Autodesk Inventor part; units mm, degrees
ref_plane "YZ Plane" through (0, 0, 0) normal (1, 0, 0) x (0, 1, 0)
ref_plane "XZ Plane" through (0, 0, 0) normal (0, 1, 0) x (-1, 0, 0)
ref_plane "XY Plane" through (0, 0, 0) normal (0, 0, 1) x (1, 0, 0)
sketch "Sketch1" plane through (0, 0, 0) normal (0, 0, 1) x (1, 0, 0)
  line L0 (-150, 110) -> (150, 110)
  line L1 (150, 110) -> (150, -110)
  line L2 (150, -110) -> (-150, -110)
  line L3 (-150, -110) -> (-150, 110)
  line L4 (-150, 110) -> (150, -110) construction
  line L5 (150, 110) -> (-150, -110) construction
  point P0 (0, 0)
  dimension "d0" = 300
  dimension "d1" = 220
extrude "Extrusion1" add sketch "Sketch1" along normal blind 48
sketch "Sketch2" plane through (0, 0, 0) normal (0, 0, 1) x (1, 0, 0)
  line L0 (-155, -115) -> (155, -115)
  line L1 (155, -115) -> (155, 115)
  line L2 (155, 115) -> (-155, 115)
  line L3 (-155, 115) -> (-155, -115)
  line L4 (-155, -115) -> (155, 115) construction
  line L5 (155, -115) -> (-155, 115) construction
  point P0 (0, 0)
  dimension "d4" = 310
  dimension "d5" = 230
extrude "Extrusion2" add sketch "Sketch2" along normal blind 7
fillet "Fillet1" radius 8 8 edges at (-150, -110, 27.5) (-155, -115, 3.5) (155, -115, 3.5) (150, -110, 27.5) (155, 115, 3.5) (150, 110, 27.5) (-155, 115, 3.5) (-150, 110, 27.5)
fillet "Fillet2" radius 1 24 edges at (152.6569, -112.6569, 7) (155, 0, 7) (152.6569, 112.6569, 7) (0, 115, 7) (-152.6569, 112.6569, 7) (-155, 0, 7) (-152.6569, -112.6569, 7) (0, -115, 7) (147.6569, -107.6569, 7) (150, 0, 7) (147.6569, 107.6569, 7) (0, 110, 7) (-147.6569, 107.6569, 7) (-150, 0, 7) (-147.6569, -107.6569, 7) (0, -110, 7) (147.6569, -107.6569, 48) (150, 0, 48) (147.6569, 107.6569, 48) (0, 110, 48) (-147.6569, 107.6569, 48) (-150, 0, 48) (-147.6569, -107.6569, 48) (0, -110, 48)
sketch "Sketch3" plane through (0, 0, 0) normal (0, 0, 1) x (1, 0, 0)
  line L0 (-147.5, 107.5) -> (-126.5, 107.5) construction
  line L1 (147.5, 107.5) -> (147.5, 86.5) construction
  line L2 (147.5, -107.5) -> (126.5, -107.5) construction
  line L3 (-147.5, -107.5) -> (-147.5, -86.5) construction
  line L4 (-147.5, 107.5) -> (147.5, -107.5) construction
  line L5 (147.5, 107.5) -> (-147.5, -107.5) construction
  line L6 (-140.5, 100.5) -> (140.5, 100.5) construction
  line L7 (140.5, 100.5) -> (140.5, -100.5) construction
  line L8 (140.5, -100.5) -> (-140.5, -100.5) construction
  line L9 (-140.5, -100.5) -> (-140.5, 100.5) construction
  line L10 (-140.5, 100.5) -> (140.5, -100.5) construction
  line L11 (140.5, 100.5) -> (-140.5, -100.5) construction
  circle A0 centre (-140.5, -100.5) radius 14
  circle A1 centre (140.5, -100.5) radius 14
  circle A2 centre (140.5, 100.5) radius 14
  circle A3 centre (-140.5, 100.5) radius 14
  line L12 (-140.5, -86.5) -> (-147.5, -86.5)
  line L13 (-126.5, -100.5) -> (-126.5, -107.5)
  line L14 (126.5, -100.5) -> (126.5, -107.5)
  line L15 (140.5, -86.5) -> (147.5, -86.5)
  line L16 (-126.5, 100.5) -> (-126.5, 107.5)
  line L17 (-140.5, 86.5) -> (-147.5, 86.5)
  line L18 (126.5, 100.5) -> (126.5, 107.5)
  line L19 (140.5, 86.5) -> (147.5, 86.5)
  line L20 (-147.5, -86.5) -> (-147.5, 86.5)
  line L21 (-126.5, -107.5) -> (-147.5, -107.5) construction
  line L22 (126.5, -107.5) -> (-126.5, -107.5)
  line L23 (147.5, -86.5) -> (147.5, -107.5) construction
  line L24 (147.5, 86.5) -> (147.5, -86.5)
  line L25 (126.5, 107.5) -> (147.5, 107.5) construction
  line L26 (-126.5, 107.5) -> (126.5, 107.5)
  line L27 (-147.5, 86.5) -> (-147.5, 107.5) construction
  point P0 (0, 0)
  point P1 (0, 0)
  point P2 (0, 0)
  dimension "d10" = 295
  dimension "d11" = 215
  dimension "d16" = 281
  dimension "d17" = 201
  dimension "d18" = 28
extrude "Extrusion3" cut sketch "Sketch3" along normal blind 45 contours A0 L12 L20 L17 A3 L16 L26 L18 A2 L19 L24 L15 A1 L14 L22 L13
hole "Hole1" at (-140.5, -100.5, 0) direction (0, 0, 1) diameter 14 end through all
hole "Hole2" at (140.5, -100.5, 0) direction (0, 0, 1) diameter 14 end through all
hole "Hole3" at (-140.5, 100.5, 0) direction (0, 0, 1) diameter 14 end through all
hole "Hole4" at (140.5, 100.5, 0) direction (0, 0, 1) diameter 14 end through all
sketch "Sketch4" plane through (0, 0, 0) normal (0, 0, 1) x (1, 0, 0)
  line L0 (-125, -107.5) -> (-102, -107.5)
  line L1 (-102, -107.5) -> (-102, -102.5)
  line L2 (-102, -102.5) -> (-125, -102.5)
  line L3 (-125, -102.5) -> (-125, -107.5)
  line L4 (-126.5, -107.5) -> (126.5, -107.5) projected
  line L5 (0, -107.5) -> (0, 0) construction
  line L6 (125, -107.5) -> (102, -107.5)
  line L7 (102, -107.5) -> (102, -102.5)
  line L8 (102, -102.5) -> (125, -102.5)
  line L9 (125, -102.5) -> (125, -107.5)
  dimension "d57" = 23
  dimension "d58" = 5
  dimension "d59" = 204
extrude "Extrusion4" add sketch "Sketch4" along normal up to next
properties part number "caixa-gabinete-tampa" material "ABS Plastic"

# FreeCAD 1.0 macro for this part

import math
import FreeCAD as App
import Part
import Sketcher

V = App.Vector
Q = App.Units.Quantity


def edges_at(feature, points):
    """Names of the edges that pass closest to the given points."""
    edges = feature.Shape.Edges
    near = lambda p: min(range(len(edges)), key=lambda i: edges[i].distToShape(Part.Vertex(*p))[0])
    return sorted({f"Edge{near(p) + 1}" for p in points})

doc = App.newDocument("Part")
body = doc.addObject("PartDesign::Body", "Body")

sketch1 = doc.addObject("Sketcher::SketchObject", "Sketch")
body.addObject(sketch1)
sketch1.AttachmentSupport = (doc.XY_Plane, [""])
sketch1.MapMode = "FlatFace"
sketch1.addGeometry([
    Part.LineSegment(V(150, 110, 0), V(-150, 110, 0)),
    Part.LineSegment(V(-150, 110, 0), V(-150, -110, 0)),
    Part.LineSegment(V(-150, -110, 0), V(150, -110, 0)),
    Part.LineSegment(V(150, -110, 0), V(150, 110, 0)),
], False)
sketch1.addConstraint([
    Sketcher.Constraint("Coincident", 0, 2, 1, 1),
    Sketcher.Constraint("Coincident", 1, 2, 2, 1),
    Sketcher.Constraint("Coincident", 2, 2, 3, 1),
    Sketcher.Constraint("Coincident", 3, 2, 0, 1),
    Sketcher.Constraint("Horizontal", 0),
    Sketcher.Constraint("Vertical", 1),
    Sketcher.Constraint("Horizontal", 2),
    Sketcher.Constraint("Vertical", 3),
    Sketcher.Constraint("Symmetric", 0, 2, 2, 2, -1, 1),
    Sketcher.Constraint("DistanceX", 0, 2, 0, 1, Q("300 mm")),
    Sketcher.Constraint("DistanceY", 1, 2, 1, 1, Q("220 mm")),
])
pad1 = doc.addObject("PartDesign::Pad", "Pad")
body.addObject(pad1)
pad1.Profile = sketch1
pad1.Length = 48

sketch2 = doc.addObject("Sketcher::SketchObject", "Sketch001")
body.addObject(sketch2)
sketch2.AttachmentSupport = (doc.XY_Plane, [""])
sketch2.MapMode = "FlatFace"
sketch2.addGeometry([
    Part.LineSegment(V(-155, 115, 0), V(-155, -115, 0)),
    Part.LineSegment(V(-155, -115, 0), V(155, -115, 0)),
    Part.LineSegment(V(155, -115, 0), V(155, 115, 0)),
    Part.LineSegment(V(155, 115, 0), V(-155, 115, 0)),
], False)
sketch2.addConstraint([
    Sketcher.Constraint("Coincident", 0, 2, 1, 1),
    Sketcher.Constraint("Coincident", 1, 2, 2, 1),
    Sketcher.Constraint("Coincident", 2, 2, 3, 1),
    Sketcher.Constraint("Coincident", 3, 2, 0, 1),
    Sketcher.Constraint("Vertical", 0),
    Sketcher.Constraint("Horizontal", 1),
    Sketcher.Constraint("Vertical", 2),
    Sketcher.Constraint("Horizontal", 3),
    Sketcher.Constraint("Symmetric", 0, 2, 2, 2, -1, 1),
    Sketcher.Constraint("DistanceX", 1, 1, 1, 2, Q("310 mm")),
    Sketcher.Constraint("DistanceY", 0, 2, 0, 1, Q("230 mm")),
])
pad2 = doc.addObject("PartDesign::Pad", "Pad001")
body.addObject(pad2)
pad2.Profile = sketch2
pad2.Length = 7
doc.recompute()

fillet = doc.addObject("PartDesign::Fillet", "Fillet")
body.addObject(fillet)
fillet.Base = (pad2, edges_at(pad2, [
    (-150, -110, 27.5),
    (-155, -115, 3.5),
    (155, -115, 3.5),
    (150, -110, 27.5),
    (155, 115, 3.5),
    (150, 110, 27.5),
    (-155, 115, 3.5),
    (-150, 110, 27.5),
]))
fillet.Radius = 8
doc.recompute()

fillet2 = doc.addObject("PartDesign::Fillet", "Fillet001")
body.addObject(fillet2)
fillet2.Base = (fillet, edges_at(fillet, [
    (152.657, -112.657, 7),
    (155, 0, 7),
    (152.657, 112.657, 7),
    (0, 115, 7),
    (-152.657, 112.657, 7),
    (-155, 0, 7),
    (-152.657, -112.657, 7),
    (0, -115, 7),
    (147.657, -107.657, 7),
    (150, 0, 7),
    (147.657, 107.657, 7),
    (0, 110, 7),
    (-147.657, 107.657, 7),
    (-150, 0, 7),
    (-147.657, -107.657, 7),
    (0, -110, 7),
    (147.657, -107.657, 48),
    (150, 0, 48),
    (147.657, 107.657, 48),
    (0, 110, 48),
    (-147.657, 107.657, 48),
    (-150, 0, 48),
    (-147.657, -107.657, 48),
    (0, -110, 48),
]))
fillet2.Radius = 1

sketch3 = doc.addObject("Sketcher::SketchObject", "Sketch002")
body.addObject(sketch3)
sketch3.AttachmentSupport = (doc.XY_Plane, [""])
sketch3.MapMode = "FlatFace"
sketch3.addGeometry([
    Part.ArcOfCircle(Part.Circle(V(-140, -100, 0), V(0, 0, 1), 14), math.radians(0), math.radians(90)),
    Part.LineSegment(V(-126, -100, 0), V(-126, -108, 0)),
    Part.LineSegment(V(-126, -108, 0), V(126, -108, 0)),
    Part.LineSegment(V(126, -108, 0), V(126, -100, 0)),
    Part.ArcOfCircle(Part.Circle(V(140, -100, 0), V(0, 0, 1), 14), math.radians(90), math.radians(180)),
    Part.LineSegment(V(140, -86, 0), V(148, -86, 0)),
    Part.LineSegment(V(148, -86, 0), V(148, 86, 0)),
    Part.LineSegment(V(148, 86, 0), V(140, 86, 0)),
    Part.ArcOfCircle(Part.Circle(V(140, 100, 0), V(0, 0, 1), 14), math.radians(180), math.radians(270)),
    Part.LineSegment(V(126, 100, 0), V(126, 108, 0)),
    Part.LineSegment(V(126, 108, 0), V(-126, 108, 0)),
    Part.LineSegment(V(-126, 108, 0), V(-126, 100, 0)),
    Part.ArcOfCircle(Part.Circle(V(-140, 100, 0), V(0, 0, 1), 14), math.radians(-90), math.radians(0)),
    Part.LineSegment(V(-140, 86, 0), V(-148, 86, 0)),
    Part.LineSegment(V(-148, 86, 0), V(-148, -86, 0)),
    Part.LineSegment(V(-148, -86, 0), V(-140, -86, 0)),
], False)
sketch3.addConstraint([
    Sketcher.Constraint("Tangent", 0, 1, 1, 1),
    Sketcher.Constraint("Coincident", 1, 2, 2, 1),
    Sketcher.Constraint("Coincident", 2, 2, 3, 1),
    Sketcher.Constraint("Tangent", 3, 2, 4, 2),
    Sketcher.Constraint("Tangent", 4, 1, 5, 1),
    Sketcher.Constraint("Coincident", 5, 2, 6, 1),
    Sketcher.Constraint("Coincident", 6, 2, 7, 1),
    Sketcher.Constraint("Tangent", 7, 2, 8, 2),
    Sketcher.Constraint("Tangent", 8, 1, 9, 1),
    Sketcher.Constraint("Coincident", 9, 2, 10, 1),
    Sketcher.Constraint("Coincident", 10, 2, 11, 1),
    Sketcher.Constraint("Tangent", 11, 2, 12, 2),
    Sketcher.Constraint("Tangent", 12, 1, 13, 1),
    Sketcher.Constraint("Coincident", 13, 2, 14, 1),
    Sketcher.Constraint("Coincident", 14, 2, 15, 1),
    Sketcher.Constraint("Tangent", 15, 2, 0, 2),
    Sketcher.Constraint("Vertical", 1),
    Sketcher.Constraint("Horizontal", 2),
    Sketcher.Constraint("Vertical", 3),
    Sketcher.Constraint("Horizontal", 5),
    Sketcher.Constraint("Vertical", 6),
    Sketcher.Constraint("Horizontal", 7),
    Sketcher.Constraint("Vertical", 9),
    Sketcher.Constraint("Horizontal", 10),
    Sketcher.Constraint("Vertical", 11),
    Sketcher.Constraint("Horizontal", 13),
    Sketcher.Constraint("Vertical", 14),
    Sketcher.Constraint("Horizontal", 15),
    Sketcher.Constraint("Equal", 0, 4),
    Sketcher.Constraint("Equal", 4, 8),
    Sketcher.Constraint("Equal", 8, 12),
    Sketcher.Constraint("Symmetric", 0, 3, 8, 3, -1, 1),
    Sketcher.Constraint("Symmetric", 4, 3, 12, 3, -1, 1),
    Sketcher.Constraint("Symmetric", 0, 3, 4, 3, -2),
    Sketcher.Constraint("Equal", 7, 13),
    Sketcher.Constraint("Equal", 15, 1),
    Sketcher.Constraint("Equal", 3, 9),
    Sketcher.Constraint("Radius", 0, Q("14 mm")),
    Sketcher.Constraint("DistanceX", 0, 3, 4, 3, Q("281 mm")),
    Sketcher.Constraint("DistanceY", 4, 3, 8, 3, Q("201 mm")),
    Sketcher.Constraint("DistanceY", 1, 2, 10, 2, Q("215 mm")),
])
pocket1 = doc.addObject("PartDesign::Pocket", "Pocket")
body.addObject(pocket1)
pocket1.Profile = sketch3
pocket1.Length = 45
pocket1.Reversed = True

sketch4 = doc.addObject("Sketcher::SketchObject", "Sketch003")
body.addObject(sketch4)
sketch4.AttachmentSupport = (doc.XY_Plane, [""])
sketch4.MapMode = "FlatFace"
sketch4.addGeometry(Part.Circle(V(-140, -100, 0), V(0, 0, 1), 7), False)
sketch4.addConstraint([
    Sketcher.Constraint("Diameter", 0, Q("14 mm")),
    Sketcher.Constraint("DistanceX", 0, 3, -1, 1, Q("140.5 mm")),
    Sketcher.Constraint("DistanceY", 0, 3, -1, 1, Q("100.5 mm")),
])
doc.recompute()
hole = doc.addObject("PartDesign::Hole", "Hole")
body.addObject(hole)
hole.Profile = sketch4
hole.ThreadType = "None"
hole.Diameter = 14
hole.DepthType = "ThroughAll"
hole.Reversed = True

sketch5 = doc.addObject("Sketcher::SketchObject", "Sketch004")
body.addObject(sketch5)
sketch5.AttachmentSupport = (doc.XY_Plane, [""])
sketch5.MapMode = "FlatFace"
sketch5.addGeometry(Part.Circle(V(140, -100, 0), V(0, 0, 1), 7), False)
sketch5.addConstraint([
    Sketcher.Constraint("Diameter", 0, Q("14 mm")),
    Sketcher.Constraint("DistanceX", -1, 1, 0, 3, Q("140.5 mm")),
    Sketcher.Constraint("DistanceY", 0, 3, -1, 1, Q("100.5 mm")),
])
doc.recompute()
hole2 = doc.addObject("PartDesign::Hole", "Hole001")
body.addObject(hole2)
hole2.Profile = sketch5
hole2.ThreadType = "None"
hole2.Diameter = 14
hole2.DepthType = "ThroughAll"
hole2.Reversed = True

sketch6 = doc.addObject("Sketcher::SketchObject", "Sketch005")
body.addObject(sketch6)
sketch6.AttachmentSupport = (doc.XY_Plane, [""])
sketch6.MapMode = "FlatFace"
sketch6.addGeometry(Part.Circle(V(-140, 100, 0), V(0, 0, 1), 7), False)
sketch6.addConstraint([
    Sketcher.Constraint("Diameter", 0, Q("14 mm")),
    Sketcher.Constraint("DistanceX", 0, 3, -1, 1, Q("140.5 mm")),
    Sketcher.Constraint("DistanceY", -1, 1, 0, 3, Q("100.5 mm")),
])
doc.recompute()
hole3 = doc.addObject("PartDesign::Hole", "Hole002")
body.addObject(hole3)
hole3.Profile = sketch6
hole3.ThreadType = "None"
hole3.Diameter = 14
hole3.DepthType = "ThroughAll"
hole3.Reversed = True

sketch7 = doc.addObject("Sketcher::SketchObject", "Sketch006")
body.addObject(sketch7)
sketch7.AttachmentSupport = (doc.XY_Plane, [""])
sketch7.MapMode = "FlatFace"
sketch7.addGeometry(Part.Circle(V(140, 100, 0), V(0, 0, 1), 7), False)
sketch7.addConstraint([
    Sketcher.Constraint("Diameter", 0, Q("14 mm")),
    Sketcher.Constraint("DistanceX", -1, 1, 0, 3, Q("140.5 mm")),
    Sketcher.Constraint("DistanceY", -1, 1, 0, 3, Q("100.5 mm")),
])
doc.recompute()
hole4 = doc.addObject("PartDesign::Hole", "Hole003")
body.addObject(hole4)
hole4.Profile = sketch7
hole4.ThreadType = "None"
hole4.Diameter = 14
hole4.DepthType = "ThroughAll"
hole4.Reversed = True

sketch8 = doc.addObject("Sketcher::SketchObject", "Sketch007")
body.addObject(sketch8)
sketch8.AttachmentSupport = (doc.XY_Plane, [""])
sketch8.MapMode = "FlatFace"
sketch8.addGeometry([
    Part.LineSegment(V(-125, -102, 0), V(-125, -108, 0)),
    Part.LineSegment(V(-125, -108, 0), V(-102, -108, 0)),
    Part.LineSegment(V(-102, -108, 0), V(-102, -102, 0)),
    Part.LineSegment(V(-102, -102, 0), V(-125, -102, 0)),
    Part.LineSegment(V(102, -102, 0), V(102, -108, 0)),
    Part.LineSegment(V(102, -108, 0), V(125, -108, 0)),
    Part.LineSegment(V(125, -108, 0), V(125, -102, 0)),
    Part.LineSegment(V(125, -102, 0), V(102, -102, 0)),
], False)
sketch8.addConstraint([
    Sketcher.Constraint("Coincident", 0, 2, 1, 1),
    Sketcher.Constraint("Coincident", 1, 2, 2, 1),
    Sketcher.Constraint("Coincident", 2, 2, 3, 1),
    Sketcher.Constraint("Coincident", 3, 2, 0, 1),
    Sketcher.Constraint("Coincident", 4, 2, 5, 1),
    Sketcher.Constraint("Coincident", 5, 2, 6, 1),
    Sketcher.Constraint("Coincident", 6, 2, 7, 1),
    Sketcher.Constraint("Coincident", 7, 2, 4, 1),
    Sketcher.Constraint("Vertical", 0),
    Sketcher.Constraint("Horizontal", 1),
    Sketcher.Constraint("Vertical", 2),
    Sketcher.Constraint("Horizontal", 3),
    Sketcher.Constraint("Vertical", 4),
    Sketcher.Constraint("Horizontal", 5),
    Sketcher.Constraint("Vertical", 6),
    Sketcher.Constraint("Horizontal", 7),
    Sketcher.Constraint("Symmetric", 1, 2, 4, 2, -2),
    Sketcher.Constraint("Symmetric", 3, 2, 6, 2, -2),
    Sketcher.Constraint("DistanceX", 1, 1, 1, 2, Q("23 mm")),
    Sketcher.Constraint("DistanceY", 0, 2, 0, 1, Q("5 mm")),
    Sketcher.Constraint("DistanceX", 1, 2, 4, 2, Q("204 mm")),
    Sketcher.Constraint("DistanceY", 0, 2, -1, 1, Q("107.5 mm")),
])
pad3 = doc.addObject("PartDesign::Pad", "Pad002")
body.addObject(pad3)
pad3.Profile = sketch8
pad3.Type = "UpToFirst"

doc.recompute()
